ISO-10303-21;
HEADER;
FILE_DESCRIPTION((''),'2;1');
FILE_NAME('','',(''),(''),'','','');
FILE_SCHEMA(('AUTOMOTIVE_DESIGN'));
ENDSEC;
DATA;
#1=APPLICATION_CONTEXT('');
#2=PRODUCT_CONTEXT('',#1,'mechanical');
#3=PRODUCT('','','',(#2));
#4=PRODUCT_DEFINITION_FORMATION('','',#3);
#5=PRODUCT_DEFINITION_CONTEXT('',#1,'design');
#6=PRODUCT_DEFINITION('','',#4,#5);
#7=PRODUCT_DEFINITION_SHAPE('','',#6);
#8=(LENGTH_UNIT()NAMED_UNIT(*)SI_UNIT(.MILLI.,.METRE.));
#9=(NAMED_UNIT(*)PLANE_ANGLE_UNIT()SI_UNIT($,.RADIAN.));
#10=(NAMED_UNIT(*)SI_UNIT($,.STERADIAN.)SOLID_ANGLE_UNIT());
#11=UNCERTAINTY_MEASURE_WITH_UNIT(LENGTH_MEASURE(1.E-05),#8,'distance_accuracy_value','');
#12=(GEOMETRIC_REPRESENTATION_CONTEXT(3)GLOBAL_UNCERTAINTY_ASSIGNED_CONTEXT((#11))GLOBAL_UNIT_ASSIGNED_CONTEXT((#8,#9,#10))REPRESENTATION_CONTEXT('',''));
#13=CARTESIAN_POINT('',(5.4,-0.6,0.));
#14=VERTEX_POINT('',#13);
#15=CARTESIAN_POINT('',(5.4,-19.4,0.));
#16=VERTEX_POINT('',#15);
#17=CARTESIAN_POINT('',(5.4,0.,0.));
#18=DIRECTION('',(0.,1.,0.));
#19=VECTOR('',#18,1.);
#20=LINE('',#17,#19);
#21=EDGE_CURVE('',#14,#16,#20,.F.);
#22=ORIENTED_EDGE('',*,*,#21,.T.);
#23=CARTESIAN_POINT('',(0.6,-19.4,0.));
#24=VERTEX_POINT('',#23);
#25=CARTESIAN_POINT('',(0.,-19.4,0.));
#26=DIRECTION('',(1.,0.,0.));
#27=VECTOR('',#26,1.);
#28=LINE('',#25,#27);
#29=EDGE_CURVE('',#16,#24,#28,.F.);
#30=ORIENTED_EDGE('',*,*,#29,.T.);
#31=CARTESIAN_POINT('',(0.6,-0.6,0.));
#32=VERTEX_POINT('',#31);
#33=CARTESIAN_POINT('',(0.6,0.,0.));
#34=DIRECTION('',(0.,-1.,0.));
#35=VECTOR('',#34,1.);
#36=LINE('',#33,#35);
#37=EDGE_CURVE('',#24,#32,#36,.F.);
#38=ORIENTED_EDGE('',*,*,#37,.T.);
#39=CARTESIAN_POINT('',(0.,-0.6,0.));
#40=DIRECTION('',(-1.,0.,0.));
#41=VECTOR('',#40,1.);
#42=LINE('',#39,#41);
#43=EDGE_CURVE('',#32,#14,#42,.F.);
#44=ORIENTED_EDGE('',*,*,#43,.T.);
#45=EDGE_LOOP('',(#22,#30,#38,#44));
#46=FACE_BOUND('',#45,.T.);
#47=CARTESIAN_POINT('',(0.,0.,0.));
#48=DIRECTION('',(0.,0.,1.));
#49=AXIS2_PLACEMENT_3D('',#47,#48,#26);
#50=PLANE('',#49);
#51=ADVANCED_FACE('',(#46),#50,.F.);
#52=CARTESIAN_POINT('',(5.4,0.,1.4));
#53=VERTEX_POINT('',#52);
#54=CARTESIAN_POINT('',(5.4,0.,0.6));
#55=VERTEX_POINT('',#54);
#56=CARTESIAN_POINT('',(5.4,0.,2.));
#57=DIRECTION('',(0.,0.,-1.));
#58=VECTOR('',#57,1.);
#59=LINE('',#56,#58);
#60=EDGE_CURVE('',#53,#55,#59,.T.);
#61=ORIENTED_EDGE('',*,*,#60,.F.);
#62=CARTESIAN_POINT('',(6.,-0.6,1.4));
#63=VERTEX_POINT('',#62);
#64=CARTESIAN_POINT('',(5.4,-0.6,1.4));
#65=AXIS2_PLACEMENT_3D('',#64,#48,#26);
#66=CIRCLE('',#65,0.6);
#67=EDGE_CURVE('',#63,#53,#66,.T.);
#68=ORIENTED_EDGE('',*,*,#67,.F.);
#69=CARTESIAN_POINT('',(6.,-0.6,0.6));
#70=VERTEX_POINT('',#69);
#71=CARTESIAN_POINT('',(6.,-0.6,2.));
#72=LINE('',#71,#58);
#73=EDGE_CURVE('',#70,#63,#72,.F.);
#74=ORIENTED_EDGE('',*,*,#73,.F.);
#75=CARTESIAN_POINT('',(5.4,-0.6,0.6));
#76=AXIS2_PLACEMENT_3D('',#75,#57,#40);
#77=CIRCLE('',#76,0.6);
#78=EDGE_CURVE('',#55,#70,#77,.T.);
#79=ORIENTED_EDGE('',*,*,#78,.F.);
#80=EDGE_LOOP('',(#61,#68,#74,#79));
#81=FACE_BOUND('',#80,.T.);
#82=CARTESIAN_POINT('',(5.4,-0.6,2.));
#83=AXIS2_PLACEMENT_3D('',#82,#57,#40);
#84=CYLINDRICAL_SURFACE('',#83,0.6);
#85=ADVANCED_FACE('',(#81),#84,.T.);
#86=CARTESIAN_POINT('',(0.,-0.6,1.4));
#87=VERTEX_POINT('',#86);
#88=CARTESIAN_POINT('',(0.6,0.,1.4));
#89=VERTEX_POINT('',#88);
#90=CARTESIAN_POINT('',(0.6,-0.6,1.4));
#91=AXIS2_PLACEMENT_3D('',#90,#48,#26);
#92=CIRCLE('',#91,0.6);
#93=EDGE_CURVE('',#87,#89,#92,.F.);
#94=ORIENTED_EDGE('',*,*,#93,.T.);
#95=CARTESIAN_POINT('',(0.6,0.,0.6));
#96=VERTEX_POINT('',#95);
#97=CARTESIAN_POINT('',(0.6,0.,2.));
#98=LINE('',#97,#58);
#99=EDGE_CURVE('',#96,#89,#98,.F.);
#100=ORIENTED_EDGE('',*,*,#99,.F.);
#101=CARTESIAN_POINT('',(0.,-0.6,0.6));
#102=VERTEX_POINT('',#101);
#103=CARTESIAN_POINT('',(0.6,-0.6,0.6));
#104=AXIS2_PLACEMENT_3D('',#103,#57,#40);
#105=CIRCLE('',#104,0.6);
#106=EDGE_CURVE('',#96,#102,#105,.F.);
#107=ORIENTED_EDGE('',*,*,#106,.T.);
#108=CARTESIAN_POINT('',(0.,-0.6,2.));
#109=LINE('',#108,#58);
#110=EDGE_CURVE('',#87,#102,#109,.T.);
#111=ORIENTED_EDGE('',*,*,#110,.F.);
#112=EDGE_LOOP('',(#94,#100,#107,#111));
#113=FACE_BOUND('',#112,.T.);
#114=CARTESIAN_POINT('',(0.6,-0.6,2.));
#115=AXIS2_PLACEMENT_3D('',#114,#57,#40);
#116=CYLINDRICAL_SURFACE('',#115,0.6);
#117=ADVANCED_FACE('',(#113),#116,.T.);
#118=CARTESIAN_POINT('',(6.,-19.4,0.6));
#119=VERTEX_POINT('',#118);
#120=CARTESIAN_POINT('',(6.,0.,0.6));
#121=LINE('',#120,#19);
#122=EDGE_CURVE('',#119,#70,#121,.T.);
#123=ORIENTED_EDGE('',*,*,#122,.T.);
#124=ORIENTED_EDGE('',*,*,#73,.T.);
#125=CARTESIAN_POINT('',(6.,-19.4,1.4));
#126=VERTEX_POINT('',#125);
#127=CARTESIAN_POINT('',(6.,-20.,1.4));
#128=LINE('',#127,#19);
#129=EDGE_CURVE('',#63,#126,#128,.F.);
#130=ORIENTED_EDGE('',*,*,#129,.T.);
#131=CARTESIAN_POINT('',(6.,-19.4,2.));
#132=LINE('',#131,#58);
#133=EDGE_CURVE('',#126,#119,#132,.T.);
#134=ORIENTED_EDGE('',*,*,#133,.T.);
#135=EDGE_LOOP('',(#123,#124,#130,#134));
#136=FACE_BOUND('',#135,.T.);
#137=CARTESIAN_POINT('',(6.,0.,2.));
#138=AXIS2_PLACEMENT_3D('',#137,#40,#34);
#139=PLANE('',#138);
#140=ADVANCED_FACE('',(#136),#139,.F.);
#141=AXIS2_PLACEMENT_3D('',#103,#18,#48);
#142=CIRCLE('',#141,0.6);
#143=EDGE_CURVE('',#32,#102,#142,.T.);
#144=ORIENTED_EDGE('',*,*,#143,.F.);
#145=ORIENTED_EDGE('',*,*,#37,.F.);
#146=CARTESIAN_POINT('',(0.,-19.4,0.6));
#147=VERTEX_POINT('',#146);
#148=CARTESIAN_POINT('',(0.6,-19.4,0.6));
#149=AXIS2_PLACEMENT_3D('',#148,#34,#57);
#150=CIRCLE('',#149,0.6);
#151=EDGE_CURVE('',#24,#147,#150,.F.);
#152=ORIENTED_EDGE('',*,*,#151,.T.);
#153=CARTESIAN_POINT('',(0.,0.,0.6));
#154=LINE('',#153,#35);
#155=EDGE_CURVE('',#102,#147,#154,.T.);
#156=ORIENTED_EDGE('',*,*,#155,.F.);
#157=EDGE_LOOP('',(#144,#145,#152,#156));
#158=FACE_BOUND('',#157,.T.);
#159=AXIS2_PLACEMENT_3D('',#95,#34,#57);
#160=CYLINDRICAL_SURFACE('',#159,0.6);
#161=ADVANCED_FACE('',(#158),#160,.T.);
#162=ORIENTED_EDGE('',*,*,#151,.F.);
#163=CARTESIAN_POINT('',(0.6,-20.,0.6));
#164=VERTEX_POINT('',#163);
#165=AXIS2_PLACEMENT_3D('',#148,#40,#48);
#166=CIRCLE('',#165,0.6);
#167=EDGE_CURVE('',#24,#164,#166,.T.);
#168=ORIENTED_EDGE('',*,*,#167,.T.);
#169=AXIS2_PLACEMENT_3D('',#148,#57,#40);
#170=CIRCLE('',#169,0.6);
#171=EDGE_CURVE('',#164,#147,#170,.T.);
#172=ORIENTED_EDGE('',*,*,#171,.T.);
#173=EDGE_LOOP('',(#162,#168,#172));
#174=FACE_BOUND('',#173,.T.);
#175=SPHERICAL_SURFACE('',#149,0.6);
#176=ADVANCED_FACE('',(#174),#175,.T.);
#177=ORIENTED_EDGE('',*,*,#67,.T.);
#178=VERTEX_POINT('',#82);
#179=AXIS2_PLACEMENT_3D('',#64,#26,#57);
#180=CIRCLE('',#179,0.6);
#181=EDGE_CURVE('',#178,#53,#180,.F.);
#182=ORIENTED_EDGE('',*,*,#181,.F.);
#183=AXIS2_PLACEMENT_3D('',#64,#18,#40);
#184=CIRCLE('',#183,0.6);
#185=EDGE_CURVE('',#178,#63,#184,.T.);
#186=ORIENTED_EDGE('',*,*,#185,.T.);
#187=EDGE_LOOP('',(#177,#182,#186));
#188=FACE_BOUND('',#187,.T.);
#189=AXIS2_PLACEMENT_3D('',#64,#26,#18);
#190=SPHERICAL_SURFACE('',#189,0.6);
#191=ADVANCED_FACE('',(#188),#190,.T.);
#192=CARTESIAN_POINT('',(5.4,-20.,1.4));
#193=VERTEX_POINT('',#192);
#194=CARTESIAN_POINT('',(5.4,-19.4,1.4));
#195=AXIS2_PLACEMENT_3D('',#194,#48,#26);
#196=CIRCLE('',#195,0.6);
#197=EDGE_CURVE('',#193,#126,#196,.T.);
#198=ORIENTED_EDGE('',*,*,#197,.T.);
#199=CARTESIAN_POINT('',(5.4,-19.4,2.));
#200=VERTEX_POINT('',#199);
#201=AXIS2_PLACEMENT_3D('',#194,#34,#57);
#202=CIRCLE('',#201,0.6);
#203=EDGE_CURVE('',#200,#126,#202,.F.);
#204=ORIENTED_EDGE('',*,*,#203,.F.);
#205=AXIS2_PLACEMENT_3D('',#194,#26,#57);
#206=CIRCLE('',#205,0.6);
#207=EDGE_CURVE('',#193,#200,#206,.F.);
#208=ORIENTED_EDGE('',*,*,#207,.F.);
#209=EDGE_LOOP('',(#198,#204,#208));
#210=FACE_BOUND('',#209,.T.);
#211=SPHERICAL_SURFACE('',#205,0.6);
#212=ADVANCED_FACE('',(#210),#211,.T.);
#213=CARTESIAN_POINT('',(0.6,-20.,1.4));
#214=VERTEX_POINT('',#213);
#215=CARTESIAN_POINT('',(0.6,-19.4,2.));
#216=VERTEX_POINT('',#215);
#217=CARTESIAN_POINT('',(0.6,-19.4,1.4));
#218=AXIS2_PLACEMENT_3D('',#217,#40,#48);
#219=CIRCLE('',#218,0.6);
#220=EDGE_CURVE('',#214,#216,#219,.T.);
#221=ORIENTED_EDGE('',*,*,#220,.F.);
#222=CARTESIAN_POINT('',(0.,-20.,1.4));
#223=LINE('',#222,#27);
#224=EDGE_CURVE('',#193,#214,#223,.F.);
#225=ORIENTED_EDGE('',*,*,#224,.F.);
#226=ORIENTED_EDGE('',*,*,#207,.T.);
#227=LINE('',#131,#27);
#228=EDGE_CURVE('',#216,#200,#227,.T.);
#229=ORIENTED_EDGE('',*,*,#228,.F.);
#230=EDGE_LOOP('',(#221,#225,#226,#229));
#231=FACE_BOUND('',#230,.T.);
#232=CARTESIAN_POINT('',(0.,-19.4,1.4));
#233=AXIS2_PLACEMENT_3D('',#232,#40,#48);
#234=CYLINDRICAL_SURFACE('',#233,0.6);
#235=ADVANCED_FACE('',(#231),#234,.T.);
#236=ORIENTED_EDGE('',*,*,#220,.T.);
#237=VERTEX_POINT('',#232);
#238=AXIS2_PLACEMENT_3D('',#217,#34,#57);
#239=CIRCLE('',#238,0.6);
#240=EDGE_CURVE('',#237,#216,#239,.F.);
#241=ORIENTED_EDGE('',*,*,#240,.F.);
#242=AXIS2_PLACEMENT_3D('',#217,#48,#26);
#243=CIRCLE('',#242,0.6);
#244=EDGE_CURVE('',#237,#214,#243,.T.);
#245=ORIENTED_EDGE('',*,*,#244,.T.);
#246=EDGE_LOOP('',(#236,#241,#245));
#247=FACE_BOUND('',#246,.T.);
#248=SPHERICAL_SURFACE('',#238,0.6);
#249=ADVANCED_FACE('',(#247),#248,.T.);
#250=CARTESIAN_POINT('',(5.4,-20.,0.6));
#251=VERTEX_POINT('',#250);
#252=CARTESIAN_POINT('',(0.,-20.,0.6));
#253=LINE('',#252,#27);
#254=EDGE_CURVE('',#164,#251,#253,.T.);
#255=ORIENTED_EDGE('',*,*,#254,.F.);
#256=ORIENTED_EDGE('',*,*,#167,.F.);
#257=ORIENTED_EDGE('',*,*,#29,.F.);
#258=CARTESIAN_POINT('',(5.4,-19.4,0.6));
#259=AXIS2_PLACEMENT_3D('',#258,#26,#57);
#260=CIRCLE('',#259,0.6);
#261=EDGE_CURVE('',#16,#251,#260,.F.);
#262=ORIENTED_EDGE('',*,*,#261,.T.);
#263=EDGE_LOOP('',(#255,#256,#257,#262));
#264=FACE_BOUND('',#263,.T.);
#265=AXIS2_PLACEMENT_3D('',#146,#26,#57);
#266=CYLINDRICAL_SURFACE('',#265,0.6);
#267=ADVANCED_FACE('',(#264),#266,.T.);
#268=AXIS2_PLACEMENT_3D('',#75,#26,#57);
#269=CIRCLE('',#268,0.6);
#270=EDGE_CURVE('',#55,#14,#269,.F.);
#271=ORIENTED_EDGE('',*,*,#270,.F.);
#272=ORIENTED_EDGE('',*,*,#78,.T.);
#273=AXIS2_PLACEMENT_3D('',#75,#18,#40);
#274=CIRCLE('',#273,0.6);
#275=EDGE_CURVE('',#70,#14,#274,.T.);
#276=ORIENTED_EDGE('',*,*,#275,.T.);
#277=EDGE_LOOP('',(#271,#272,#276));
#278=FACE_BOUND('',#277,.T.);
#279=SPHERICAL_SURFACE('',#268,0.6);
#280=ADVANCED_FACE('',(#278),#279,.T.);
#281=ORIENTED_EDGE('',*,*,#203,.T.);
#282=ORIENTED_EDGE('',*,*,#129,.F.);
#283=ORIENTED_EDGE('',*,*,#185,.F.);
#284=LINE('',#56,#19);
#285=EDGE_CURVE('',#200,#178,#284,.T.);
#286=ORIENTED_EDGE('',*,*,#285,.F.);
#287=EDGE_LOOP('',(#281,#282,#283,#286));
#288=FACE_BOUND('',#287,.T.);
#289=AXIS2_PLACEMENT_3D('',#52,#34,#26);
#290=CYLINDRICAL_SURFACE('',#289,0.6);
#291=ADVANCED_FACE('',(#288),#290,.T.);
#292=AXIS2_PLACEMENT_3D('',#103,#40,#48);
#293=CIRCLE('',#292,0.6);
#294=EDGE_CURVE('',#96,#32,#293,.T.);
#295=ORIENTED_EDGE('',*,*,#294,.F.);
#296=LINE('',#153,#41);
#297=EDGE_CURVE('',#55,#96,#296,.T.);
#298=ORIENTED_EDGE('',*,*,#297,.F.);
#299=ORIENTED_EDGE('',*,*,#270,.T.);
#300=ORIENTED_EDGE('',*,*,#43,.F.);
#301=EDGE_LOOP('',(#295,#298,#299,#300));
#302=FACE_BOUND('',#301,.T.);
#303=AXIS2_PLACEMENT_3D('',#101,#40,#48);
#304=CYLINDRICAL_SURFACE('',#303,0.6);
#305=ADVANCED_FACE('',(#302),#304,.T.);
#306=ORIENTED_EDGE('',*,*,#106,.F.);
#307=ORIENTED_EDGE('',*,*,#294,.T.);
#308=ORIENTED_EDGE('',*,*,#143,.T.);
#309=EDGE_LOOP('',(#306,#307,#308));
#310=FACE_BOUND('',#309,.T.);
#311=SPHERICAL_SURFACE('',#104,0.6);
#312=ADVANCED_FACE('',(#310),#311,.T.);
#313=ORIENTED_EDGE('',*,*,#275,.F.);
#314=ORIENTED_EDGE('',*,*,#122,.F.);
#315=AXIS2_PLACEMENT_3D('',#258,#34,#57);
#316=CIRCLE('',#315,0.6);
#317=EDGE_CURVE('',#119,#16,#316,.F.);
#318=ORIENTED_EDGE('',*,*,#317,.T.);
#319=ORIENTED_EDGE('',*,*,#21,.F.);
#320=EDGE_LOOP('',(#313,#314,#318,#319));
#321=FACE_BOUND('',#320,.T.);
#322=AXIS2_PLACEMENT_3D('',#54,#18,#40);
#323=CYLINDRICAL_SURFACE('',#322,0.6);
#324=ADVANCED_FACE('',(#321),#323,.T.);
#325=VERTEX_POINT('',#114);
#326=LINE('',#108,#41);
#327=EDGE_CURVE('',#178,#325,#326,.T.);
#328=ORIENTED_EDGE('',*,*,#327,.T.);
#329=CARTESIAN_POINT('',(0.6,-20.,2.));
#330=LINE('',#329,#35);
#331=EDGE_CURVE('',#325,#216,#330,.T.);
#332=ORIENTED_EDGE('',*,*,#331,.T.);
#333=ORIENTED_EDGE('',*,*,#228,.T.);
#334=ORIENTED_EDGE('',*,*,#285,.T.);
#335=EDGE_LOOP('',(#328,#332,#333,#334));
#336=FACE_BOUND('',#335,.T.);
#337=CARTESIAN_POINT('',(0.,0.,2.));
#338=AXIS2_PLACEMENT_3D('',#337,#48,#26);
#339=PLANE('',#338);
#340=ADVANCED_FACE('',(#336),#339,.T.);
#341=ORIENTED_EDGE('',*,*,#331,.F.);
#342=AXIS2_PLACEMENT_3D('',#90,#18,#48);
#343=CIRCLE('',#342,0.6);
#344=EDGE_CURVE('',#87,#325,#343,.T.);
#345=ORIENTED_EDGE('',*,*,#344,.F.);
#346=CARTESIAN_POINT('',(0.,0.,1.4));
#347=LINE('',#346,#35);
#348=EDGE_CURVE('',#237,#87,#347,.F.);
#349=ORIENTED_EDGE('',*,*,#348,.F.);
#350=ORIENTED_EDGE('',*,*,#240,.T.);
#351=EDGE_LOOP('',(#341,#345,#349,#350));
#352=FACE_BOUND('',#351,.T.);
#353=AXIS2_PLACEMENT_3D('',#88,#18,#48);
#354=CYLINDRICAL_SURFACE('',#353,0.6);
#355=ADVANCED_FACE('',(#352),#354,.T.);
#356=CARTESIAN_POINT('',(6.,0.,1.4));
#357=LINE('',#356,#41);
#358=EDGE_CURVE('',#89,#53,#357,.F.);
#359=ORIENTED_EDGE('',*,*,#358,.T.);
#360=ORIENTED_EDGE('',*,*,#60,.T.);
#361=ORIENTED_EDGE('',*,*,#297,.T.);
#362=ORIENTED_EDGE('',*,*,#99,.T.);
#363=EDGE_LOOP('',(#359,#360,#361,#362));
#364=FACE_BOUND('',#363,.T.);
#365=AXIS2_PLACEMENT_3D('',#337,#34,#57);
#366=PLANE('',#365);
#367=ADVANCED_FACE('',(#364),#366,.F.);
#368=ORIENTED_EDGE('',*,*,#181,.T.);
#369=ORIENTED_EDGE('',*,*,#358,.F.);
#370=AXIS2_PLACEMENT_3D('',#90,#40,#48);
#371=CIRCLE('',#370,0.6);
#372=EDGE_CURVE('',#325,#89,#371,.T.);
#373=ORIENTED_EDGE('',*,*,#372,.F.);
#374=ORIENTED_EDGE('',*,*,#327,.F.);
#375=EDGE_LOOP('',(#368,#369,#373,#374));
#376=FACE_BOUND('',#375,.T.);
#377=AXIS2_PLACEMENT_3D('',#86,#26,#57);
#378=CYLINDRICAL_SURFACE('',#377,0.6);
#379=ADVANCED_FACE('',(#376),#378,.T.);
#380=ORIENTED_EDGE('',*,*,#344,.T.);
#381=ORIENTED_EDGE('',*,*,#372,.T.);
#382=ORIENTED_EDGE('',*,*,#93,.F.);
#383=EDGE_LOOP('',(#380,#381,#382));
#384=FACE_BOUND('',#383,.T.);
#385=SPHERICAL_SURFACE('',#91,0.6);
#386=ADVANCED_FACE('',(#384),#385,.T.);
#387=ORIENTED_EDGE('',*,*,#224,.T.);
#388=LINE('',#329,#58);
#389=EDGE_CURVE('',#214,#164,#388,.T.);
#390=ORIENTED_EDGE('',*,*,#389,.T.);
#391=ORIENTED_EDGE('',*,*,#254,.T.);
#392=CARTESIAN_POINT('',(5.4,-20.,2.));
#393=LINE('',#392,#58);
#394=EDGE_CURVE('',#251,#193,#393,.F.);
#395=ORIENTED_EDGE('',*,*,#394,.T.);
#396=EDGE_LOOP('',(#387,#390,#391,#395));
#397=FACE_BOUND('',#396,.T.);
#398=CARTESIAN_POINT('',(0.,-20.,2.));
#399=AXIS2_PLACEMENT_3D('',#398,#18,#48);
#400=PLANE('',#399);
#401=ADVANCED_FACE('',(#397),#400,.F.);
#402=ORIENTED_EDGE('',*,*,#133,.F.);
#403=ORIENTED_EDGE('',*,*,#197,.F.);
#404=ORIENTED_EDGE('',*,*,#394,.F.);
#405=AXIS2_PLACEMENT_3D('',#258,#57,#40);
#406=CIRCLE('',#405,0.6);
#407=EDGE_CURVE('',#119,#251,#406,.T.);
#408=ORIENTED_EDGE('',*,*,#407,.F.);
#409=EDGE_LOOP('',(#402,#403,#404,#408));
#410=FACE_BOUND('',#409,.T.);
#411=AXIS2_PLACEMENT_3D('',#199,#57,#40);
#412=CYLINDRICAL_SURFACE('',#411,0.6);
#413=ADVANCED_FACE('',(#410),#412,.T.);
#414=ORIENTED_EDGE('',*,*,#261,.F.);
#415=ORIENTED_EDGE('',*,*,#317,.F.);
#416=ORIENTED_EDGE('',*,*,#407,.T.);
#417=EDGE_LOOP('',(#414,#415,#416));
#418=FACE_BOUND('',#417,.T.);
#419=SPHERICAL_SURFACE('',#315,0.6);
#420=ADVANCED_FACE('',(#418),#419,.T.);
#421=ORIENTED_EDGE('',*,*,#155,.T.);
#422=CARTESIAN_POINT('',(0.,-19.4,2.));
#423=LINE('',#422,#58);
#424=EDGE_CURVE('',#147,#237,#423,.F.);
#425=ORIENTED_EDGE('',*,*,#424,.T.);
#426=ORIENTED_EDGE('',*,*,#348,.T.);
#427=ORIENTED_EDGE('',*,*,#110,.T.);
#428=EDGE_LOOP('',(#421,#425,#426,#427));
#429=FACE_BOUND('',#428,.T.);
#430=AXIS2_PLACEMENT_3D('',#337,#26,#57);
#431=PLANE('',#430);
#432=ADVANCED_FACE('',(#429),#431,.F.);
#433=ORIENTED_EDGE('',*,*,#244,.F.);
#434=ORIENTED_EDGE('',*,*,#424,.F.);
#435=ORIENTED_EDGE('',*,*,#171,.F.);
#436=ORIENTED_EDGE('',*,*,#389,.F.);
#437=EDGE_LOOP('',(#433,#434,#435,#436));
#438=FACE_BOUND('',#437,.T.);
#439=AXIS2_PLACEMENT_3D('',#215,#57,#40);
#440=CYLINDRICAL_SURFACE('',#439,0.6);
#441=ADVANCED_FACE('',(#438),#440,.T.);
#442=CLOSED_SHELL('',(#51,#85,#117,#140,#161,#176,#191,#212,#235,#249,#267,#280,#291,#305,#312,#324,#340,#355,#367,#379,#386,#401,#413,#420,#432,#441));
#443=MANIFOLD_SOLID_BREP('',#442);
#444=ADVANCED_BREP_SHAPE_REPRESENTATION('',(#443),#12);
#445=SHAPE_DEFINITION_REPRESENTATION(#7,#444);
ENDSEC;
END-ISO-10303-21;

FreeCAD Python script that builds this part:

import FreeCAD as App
import Part
import Sketcher
from FreeCAD import Vector


def add_polygon(sketch, points):
    """Adds a closed chain of lines whose ends are joined by coincident constraints."""
    first, n = sketch.GeometryCount, len(points)
    for a, b in zip(points, points[1:] + points[:1]):
        sketch.addGeometry(Part.LineSegment(App.Vector(*a, 0), App.Vector(*b, 0)), False)
    for i in range(n):
        sketch.addConstraint(Sketcher.Constraint("Coincident", first + i, 2, first + (i + 1) % n, 1))

doc = App.newDocument("Part")
body = doc.addObject("PartDesign::Body", "Body")

# Sketch on XY plane
sketch1 = doc.addObject("Sketcher::SketchObject", "Sketch")
body.addObject(sketch1)
sketch1.AttachmentSupport = (doc.XY_Plane, [""])
sketch1.MapMode = "FlatFace"
add_polygon(sketch1, [(0, 0), (0, -20), (6, -20), (6, 0)])  # lines 0-3
sketch1.addConstraint(Sketcher.Constraint("Vertical", 0))
sketch1.addConstraint(Sketcher.Constraint("Horizontal", 1))
sketch1.addConstraint(Sketcher.Constraint("Vertical", 2))
sketch1.addConstraint(Sketcher.Constraint("Horizontal", 3))
sketch1.addConstraint(Sketcher.Constraint("Coincident", 3, 2, -1, 1))
sketch1.addConstraint(Sketcher.Constraint("DistanceX", 1, 1, 1, 2, 6.0))
sketch1.addConstraint(Sketcher.Constraint("DistanceY", 0, 2, 0, 1, 20.0))
pad1 = doc.addObject("PartDesign::Pad", "Pad")
body.addObject(pad1)
pad1.Profile = sketch1
pad1.Length = 2
doc.recompute()

fillet = doc.addObject("PartDesign::Fillet", "Fillet")
body.addObject(fillet)
fillet.Base = (pad1, ["Edge1"])
fillet.UseAllEdges = True
fillet.Radius = 0.6

doc.recompute()
